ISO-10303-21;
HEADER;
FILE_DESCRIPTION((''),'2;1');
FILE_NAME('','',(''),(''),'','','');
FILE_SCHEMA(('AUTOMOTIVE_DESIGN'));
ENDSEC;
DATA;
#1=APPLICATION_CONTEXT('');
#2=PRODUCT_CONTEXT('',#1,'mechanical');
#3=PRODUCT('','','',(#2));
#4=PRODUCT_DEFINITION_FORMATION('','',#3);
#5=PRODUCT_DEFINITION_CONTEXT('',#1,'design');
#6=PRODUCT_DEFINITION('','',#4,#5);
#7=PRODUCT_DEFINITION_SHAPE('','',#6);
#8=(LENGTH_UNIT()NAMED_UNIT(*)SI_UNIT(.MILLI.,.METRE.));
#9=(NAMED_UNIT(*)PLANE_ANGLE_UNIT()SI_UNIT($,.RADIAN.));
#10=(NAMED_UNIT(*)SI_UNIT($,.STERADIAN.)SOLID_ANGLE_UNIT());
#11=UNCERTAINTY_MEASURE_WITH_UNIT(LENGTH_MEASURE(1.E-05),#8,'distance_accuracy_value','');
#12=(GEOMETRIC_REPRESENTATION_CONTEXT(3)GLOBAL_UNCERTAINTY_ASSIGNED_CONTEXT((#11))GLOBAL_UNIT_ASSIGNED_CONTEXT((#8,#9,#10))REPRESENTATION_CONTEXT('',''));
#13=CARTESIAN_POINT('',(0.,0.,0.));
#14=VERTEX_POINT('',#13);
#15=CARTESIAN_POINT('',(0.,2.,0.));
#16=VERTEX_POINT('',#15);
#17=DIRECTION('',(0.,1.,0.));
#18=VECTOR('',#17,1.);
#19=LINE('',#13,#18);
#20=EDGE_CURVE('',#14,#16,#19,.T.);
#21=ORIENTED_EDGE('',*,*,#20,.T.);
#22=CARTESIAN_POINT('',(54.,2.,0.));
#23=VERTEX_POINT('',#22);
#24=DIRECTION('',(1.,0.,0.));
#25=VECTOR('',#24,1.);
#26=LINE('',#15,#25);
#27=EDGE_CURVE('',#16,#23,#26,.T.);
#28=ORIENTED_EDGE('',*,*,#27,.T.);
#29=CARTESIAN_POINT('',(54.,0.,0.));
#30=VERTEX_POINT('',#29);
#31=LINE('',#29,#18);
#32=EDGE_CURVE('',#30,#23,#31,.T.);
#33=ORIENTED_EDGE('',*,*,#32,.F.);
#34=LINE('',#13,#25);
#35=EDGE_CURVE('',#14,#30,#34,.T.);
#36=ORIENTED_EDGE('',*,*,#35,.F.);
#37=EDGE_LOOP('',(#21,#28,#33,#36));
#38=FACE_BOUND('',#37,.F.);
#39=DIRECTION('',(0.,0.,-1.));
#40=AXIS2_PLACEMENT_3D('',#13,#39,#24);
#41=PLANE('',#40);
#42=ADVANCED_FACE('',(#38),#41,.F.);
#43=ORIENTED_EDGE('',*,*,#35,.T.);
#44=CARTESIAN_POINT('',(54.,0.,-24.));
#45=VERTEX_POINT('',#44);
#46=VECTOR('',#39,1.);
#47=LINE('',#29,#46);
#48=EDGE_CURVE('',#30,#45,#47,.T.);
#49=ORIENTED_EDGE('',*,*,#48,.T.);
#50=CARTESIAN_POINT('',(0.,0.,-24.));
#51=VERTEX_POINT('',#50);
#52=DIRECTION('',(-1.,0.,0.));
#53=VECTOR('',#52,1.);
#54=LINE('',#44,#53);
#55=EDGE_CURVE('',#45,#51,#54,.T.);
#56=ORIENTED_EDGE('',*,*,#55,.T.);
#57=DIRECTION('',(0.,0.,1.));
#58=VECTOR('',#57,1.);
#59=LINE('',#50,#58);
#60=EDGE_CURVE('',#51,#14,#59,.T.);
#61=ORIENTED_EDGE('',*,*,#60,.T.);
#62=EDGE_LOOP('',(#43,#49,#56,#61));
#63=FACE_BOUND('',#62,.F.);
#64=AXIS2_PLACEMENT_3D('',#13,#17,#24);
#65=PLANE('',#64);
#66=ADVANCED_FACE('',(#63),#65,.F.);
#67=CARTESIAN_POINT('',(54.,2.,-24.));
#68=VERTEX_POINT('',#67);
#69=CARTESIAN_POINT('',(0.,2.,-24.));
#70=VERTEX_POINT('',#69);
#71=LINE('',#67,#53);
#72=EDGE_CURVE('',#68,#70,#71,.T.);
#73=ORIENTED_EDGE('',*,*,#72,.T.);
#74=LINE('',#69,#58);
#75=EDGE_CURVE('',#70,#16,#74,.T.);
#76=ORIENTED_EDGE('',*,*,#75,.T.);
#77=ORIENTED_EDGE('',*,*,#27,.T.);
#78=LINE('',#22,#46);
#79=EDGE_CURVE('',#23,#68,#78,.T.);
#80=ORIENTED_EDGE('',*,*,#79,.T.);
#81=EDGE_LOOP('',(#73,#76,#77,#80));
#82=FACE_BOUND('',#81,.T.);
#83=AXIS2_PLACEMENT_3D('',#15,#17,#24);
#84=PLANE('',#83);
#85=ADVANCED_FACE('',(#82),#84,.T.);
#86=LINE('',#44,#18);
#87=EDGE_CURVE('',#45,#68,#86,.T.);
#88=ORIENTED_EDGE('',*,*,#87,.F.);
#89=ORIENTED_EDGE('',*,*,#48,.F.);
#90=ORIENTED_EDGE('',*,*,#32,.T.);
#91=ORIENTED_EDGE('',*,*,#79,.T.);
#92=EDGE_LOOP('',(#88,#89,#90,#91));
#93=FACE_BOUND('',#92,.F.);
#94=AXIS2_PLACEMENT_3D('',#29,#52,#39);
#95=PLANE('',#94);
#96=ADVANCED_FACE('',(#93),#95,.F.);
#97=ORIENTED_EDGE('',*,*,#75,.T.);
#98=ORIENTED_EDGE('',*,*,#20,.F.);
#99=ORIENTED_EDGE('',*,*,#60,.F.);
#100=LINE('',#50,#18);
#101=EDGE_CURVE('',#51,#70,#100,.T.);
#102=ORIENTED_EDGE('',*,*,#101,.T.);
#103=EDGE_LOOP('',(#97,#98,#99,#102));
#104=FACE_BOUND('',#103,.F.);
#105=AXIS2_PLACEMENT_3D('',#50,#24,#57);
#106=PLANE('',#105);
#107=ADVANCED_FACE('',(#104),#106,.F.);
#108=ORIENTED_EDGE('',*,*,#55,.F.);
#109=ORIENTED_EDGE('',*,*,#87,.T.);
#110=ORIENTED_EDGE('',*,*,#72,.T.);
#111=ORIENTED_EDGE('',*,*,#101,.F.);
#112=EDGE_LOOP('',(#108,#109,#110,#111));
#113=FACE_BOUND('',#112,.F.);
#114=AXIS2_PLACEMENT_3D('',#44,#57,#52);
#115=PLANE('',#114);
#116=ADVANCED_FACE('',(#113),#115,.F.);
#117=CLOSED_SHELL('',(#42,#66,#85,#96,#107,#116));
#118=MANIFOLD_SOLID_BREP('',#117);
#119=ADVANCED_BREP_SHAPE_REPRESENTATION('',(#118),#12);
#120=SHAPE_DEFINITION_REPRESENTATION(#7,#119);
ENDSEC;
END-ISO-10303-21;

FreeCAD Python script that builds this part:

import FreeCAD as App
import Part
import Sketcher

V = App.Vector


def add_polygon(sketch, points):
    """Adds a closed chain of lines whose ends are joined by coincident constraints."""
    first, n = sketch.GeometryCount, len(points)
    for a, b in zip(points, points[1:] + points[:1]):
        sketch.addGeometry(Part.LineSegment(App.Vector(*a, 0), App.Vector(*b, 0)), False)
    for i in range(n):
        sketch.addConstraint(Sketcher.Constraint("Coincident", first + i, 2, first + (i + 1) % n, 1))

doc = App.newDocument("Part")
body = doc.addObject("PartDesign::Body", "Body")

# Sketch on XZ plane
sketch1 = body.newObject("Sketcher::SketchObject", "Sketch")
sketch1.AttachmentSupport = (doc.getObject("XZ_Plane"), [""])
sketch1.MapMode = "FlatFace"
add_polygon(sketch1, [(0, -24), (0, 0), (54, 0), (54, -24)])  # lines 0-3
sketch1.addConstraint(Sketcher.Constraint("Vertical", 0))
sketch1.addConstraint(Sketcher.Constraint("Horizontal", 1))
sketch1.addConstraint(Sketcher.Constraint("Vertical", 2))
sketch1.addConstraint(Sketcher.Constraint("Horizontal", 3))
sketch1.addConstraint(Sketcher.Constraint("Coincident", 0, 2, -1, 1))
sketch1.addConstraint(Sketcher.Constraint("DistanceX", 1, 1, 1, 2, 54.0))
sketch1.addConstraint(Sketcher.Constraint("DistanceY", 0, 1, 0, 2, 24.0))
pad1 = body.newObject("PartDesign::Pad", "Pad")
pad1.Profile = sketch1
pad1.Length = 2
pad1.Reversed = True

doc.recompute()
